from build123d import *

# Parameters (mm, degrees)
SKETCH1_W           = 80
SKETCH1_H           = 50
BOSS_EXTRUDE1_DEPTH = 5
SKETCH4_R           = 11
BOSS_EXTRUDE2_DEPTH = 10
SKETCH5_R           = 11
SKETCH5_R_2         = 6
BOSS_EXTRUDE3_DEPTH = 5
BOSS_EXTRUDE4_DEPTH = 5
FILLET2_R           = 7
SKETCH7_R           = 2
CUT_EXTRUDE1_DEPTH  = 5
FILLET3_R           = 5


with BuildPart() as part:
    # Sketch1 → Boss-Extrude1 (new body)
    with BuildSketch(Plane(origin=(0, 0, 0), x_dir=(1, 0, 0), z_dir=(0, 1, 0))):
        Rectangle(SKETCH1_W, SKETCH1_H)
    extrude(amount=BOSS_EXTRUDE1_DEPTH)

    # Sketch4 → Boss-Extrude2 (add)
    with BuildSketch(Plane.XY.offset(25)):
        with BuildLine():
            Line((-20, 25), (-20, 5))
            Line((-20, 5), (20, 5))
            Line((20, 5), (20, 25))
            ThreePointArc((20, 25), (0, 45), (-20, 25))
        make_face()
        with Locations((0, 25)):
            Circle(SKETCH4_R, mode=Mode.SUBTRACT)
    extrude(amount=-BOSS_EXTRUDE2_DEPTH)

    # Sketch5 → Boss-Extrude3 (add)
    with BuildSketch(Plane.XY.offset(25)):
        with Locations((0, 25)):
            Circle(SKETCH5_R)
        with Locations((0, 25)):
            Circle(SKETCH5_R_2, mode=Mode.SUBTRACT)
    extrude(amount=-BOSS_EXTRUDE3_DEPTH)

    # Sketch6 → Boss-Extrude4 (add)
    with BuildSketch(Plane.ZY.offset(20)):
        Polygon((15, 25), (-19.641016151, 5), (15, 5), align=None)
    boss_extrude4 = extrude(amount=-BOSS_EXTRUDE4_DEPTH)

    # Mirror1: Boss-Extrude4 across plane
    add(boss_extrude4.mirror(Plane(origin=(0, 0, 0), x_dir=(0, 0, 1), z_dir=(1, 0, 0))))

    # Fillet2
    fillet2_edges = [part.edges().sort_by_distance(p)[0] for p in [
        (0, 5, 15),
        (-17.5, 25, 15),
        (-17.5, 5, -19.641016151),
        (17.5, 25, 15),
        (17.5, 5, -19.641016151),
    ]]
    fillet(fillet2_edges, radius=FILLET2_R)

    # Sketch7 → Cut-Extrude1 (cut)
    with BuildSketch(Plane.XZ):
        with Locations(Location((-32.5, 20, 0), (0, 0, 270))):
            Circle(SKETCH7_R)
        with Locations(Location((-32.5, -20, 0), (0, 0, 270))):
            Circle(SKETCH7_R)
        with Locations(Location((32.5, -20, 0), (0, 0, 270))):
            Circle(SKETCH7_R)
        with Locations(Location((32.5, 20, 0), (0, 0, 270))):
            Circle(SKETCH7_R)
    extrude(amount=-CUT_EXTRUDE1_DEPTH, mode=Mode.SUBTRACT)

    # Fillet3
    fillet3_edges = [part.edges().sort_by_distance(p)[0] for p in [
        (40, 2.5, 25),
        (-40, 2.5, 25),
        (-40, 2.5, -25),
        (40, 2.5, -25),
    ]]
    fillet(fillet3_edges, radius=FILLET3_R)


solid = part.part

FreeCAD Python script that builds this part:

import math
import FreeCAD as App
import Part
import Sketcher

V = App.Vector
Q = App.Units.Quantity


def edges_at(feature, points):
    """Names of the edges that pass closest to the given points."""
    edges = feature.Shape.Edges
    near = lambda p: min(range(len(edges)), key=lambda i: edges[i].distToShape(Part.Vertex(*p))[0])
    return sorted({f"Edge{near(p) + 1}" for p in points})

doc = App.newDocument("Part")
params = doc.addObject("Spreadsheet::Sheet", "Params")
for row, (alias, value) in enumerate([
    ("sketch1_width", "80 mm"),
    ("sketch1_height", "50 mm"),
    ("pad1_length", "5 mm"),
    ("sketch2_diameter", "22 mm"),
    ("sketch2_radius", "20 mm"),
    ("sketch2_height", "20 mm"),
    ("pad2_length", "10 mm"),
    ("sketch3_diameter", "22 mm"),
    ("sketch3_diameter2", "12 mm"),
    ("pad3_length", "5 mm"),
    ("sketch4_width", "20 mm"),
    ("pad4_length", "5 mm"),
    ("fillet_radius", "7 mm"),
    ("sketch5_diameter", "4 mm"),
    ("pocket1_length", "5 mm"),
    ("fillet2_radius", "5 mm"),
], start=1):
    params.set(f"A{row}", alias)
    params.set(f"B{row}", "=" + value)
    params.setAlias(f"B{row}", alias)

body = doc.addObject("PartDesign::Body", "Body")

# Sketch on XZ plane
sketch1 = body.newObject("Sketcher::SketchObject", "Sketch")
sketch1.AttachmentSupport = (doc.getObject("XZ_Plane"), [""])
sketch1.MapMode = "FlatFace"
sketch1.addGeometry([
    Part.LineSegment(V(-40, -25, 0), V(-40, 25, 0)),
    Part.LineSegment(V(-40, 25, 0), V(40, 25, 0)),
    Part.LineSegment(V(40, 25, 0), V(40, -25, 0)),
    Part.LineSegment(V(40, -25, 0), V(-40, -25, 0)),
], False)
sketch1.addConstraint([
    Sketcher.Constraint("Coincident", 0, 2, 1, 1),
    Sketcher.Constraint("Coincident", 1, 2, 2, 1),
    Sketcher.Constraint("Coincident", 2, 2, 3, 1),
    Sketcher.Constraint("Coincident", 3, 2, 0, 1),
    Sketcher.Constraint("Vertical", 0),
    Sketcher.Constraint("Horizontal", 1),
    Sketcher.Constraint("Vertical", 2),
    Sketcher.Constraint("Horizontal", 3),
    Sketcher.Constraint("Symmetric", 0, 2, 2, 2, -1, 1),
    Sketcher.Constraint("DistanceX", 1, 1, 1, 2, 80.0),
    Sketcher.Constraint("DistanceY", 0, 1, 0, 2, 50.0),
])
sketch1.setExpression("Constraints[9]", "Params.sketch1_width")
sketch1.setExpression("Constraints[10]", "Params.sketch1_height")
pad1 = body.newObject("PartDesign::Pad", "Pad")
pad1.Profile = sketch1
pad1.setExpression("Length", "Params.pad1_length")
pad1.Reversed = True

# Sketch on XY plane
sketch2 = body.newObject("Sketcher::SketchObject", "Sketch001")
sketch2.AttachmentSupport = (doc.getObject("XY_Plane"), [""])
sketch2.MapMode = "FlatFace"
sketch2.AttachmentOffset = App.Placement(V(0, 0, 25), App.Rotation())
sketch2.addGeometry([
    Part.LineSegment(V(-20, 25, 0), V(-20, 5, 0)),  # 0
    Part.LineSegment(V(-20, 5, 0), V(20, 5, 0)),  # 1
    Part.LineSegment(V(20, 5, 0), V(20, 25, 0)),  # 2
    Part.ArcOfCircle(Part.Circle(V(0, 25, 0), V(0, 0, 1), 20), math.radians(0), math.radians(180)),  # 3
    Part.Circle(V(0, 25, 0), V(0, 0, 1), 11),  # 4
], False)
sketch2.addConstraint([
    Sketcher.Constraint("Coincident", 0, 2, 1, 1),
    Sketcher.Constraint("Coincident", 1, 2, 2, 1),
    Sketcher.Constraint("Tangent", 2, 2, 3, 1),
    Sketcher.Constraint("Tangent", 3, 2, 0, 1),
    Sketcher.Constraint("Vertical", 0),
    Sketcher.Constraint("Horizontal", 1),
    Sketcher.Constraint("Vertical", 2),
    Sketcher.Constraint("Coincident", 4, 3, 3, 3),
    Sketcher.Constraint("PointOnObject", 3, 3, -2),
    Sketcher.Constraint("Diameter", 4, 22.0),
    Sketcher.Constraint("Radius", 3, 20.0),
    Sketcher.Constraint("DistanceY", 0, 2, 0, 1, 20.0),
    Sketcher.Constraint("DistanceY", -1, 1, 3, 3, 25.0),
])
sketch2.setExpression("Constraints[9]", "Params.sketch2_diameter")
sketch2.setExpression("Constraints[10]", "Params.sketch2_radius")
sketch2.setExpression("Constraints[11]", "Params.sketch2_height")
pad2 = body.newObject("PartDesign::Pad", "Pad001")
pad2.Profile = sketch2
pad2.setExpression("Length", "Params.pad2_length")
pad2.Reversed = True

# Sketch on XY plane
sketch3 = body.newObject("Sketcher::SketchObject", "Sketch002")
sketch3.AttachmentSupport = (doc.getObject("XY_Plane"), [""])
sketch3.MapMode = "FlatFace"
sketch3.AttachmentOffset = App.Placement(V(0, 0, 25), App.Rotation())
sketch3.addGeometry([
    Part.Circle(V(0, 25, 0), V(0, 0, 1), 11),
    Part.Circle(V(0, 25, 0), V(0, 0, 1), 6),
], False)
sketch3.addConstraint([
    Sketcher.Constraint("Coincident", 1, 3, 0, 3),
    Sketcher.Constraint("PointOnObject", 0, 3, -2),
    Sketcher.Constraint("Diameter", 0, 22.0),
    Sketcher.Constraint("Diameter", 1, 12.0),
    Sketcher.Constraint("DistanceY", -1, 1, 0, 3, 25.0),
])
sketch3.setExpression("Constraints[2]", "Params.sketch3_diameter")
sketch3.setExpression("Constraints[3]", "Params.sketch3_diameter2")
pad3 = body.newObject("PartDesign::Pad", "Pad002")
pad3.Profile = sketch3
pad3.setExpression("Length", "Params.pad3_length")
pad3.Reversed = True

# Sketch on YZ plane
sketch4 = body.newObject("Sketcher::SketchObject", "Sketch003")
sketch4.AttachmentSupport = (doc.getObject("YZ_Plane"), [""])
sketch4.MapMode = "FlatFace"
sketch4.AttachmentOffset = App.Placement(V(0, 0, -20), App.Rotation())
sketch4.addGeometry([
    Part.LineSegment(V(25, 15, 0), V(5, -20, 0)),
    Part.LineSegment(V(5, -20, 0), V(5, 15, 0)),
    Part.LineSegment(V(5, 15, 0), V(25, 15, 0)),
], False)
sketch4.addConstraint([
    Sketcher.Constraint("Coincident", 0, 2, 1, 1),
    Sketcher.Constraint("Coincident", 1, 2, 2, 1),
    Sketcher.Constraint("Coincident", 2, 2, 0, 1),
    Sketcher.Constraint("Vertical", 1),
    Sketcher.Constraint("Horizontal", 2),
    Sketcher.Constraint("DistanceX", 2, 1, 2, 2, 20.0),
    Sketcher.Constraint("Angle", 0, Q("-120 deg")),
    Sketcher.Constraint("DistanceX", -1, 1, 0, 2, 5.0),
    Sketcher.Constraint("DistanceY", -1, 1, 1, 2, 15.0),
])
sketch4.setExpression("Constraints[5]", "Params.sketch4_width")
pad4 = body.newObject("PartDesign::Pad", "Pad003")
pad4.Profile = sketch4
pad4.setExpression("Length", "Params.pad4_length")
doc.recompute()

mirrored = body.newObject("PartDesign::Mirrored", "Mirrored")
mirrored.Originals = [pad4]
mirrored.MirrorPlane = (doc.getObject("YZ_Plane"), [""])
body.Tip = mirrored
doc.recompute()

fillet = body.newObject("PartDesign::Fillet", "Fillet")
fillet.Base = (mirrored, edges_at(mirrored, [
    (0, 5, 15),
    (-17.5, 25, 15),
    (-17.5, 5, -19.641),
    (17.5, 25, 15),
    (17.5, 5, -19.641),
]))
fillet.setExpression("Radius", "Params.fillet_radius")

# Sketch on XZ plane
sketch5 = body.newObject("Sketcher::SketchObject", "Sketch004")
sketch5.AttachmentSupport = (doc.getObject("XZ_Plane"), [""])
sketch5.MapMode = "FlatFace"
sketch5.addGeometry([
    Part.Circle(V(-32.5, 20, 0), V(0, 0, 1), 2),
    Part.Circle(V(-32.5, -20, 0), V(0, 0, 1), 2),
    Part.Circle(V(32.5, -20, 0), V(0, 0, 1), 2),
    Part.Circle(V(32.5, 20, 0), V(0, 0, 1), 2),
], False)
sketch5.addConstraint([
    Sketcher.Constraint("Equal", 0, 1),
    Sketcher.Constraint("Equal", 1, 2),
    Sketcher.Constraint("Equal", 2, 3),
    Sketcher.Constraint("Symmetric", 0, 3, 2, 3, -1, 1),
    Sketcher.Constraint("Symmetric", 1, 3, 3, 3, -1, 1),
    Sketcher.Constraint("Symmetric", 1, 3, 2, 3, -2),
    Sketcher.Constraint("Diameter", 0, 4.0),
    Sketcher.Constraint("DistanceY", -1, 1, 0, 3, 20.0),
    Sketcher.Constraint("DistanceX", 1, 3, 2, 3, 65.0),
])
sketch5.setExpression("Constraints[6]", "Params.sketch5_diameter")
pocket1 = body.newObject("PartDesign::Pocket", "Pocket")
pocket1.Profile = sketch5
pocket1.setExpression("Length", "Params.pocket1_length")
doc.recompute()

fillet2 = body.newObject("PartDesign::Fillet", "Fillet001")
fillet2.Base = (pocket1, edges_at(pocket1, [
    (40, 2.5, 25),
    (-40, 2.5, 25),
    (-40, 2.5, -25),
    (40, 2.5, -25),
]))
fillet2.setExpression("Radius", "Params.fillet2_radius")

doc.recompute()
